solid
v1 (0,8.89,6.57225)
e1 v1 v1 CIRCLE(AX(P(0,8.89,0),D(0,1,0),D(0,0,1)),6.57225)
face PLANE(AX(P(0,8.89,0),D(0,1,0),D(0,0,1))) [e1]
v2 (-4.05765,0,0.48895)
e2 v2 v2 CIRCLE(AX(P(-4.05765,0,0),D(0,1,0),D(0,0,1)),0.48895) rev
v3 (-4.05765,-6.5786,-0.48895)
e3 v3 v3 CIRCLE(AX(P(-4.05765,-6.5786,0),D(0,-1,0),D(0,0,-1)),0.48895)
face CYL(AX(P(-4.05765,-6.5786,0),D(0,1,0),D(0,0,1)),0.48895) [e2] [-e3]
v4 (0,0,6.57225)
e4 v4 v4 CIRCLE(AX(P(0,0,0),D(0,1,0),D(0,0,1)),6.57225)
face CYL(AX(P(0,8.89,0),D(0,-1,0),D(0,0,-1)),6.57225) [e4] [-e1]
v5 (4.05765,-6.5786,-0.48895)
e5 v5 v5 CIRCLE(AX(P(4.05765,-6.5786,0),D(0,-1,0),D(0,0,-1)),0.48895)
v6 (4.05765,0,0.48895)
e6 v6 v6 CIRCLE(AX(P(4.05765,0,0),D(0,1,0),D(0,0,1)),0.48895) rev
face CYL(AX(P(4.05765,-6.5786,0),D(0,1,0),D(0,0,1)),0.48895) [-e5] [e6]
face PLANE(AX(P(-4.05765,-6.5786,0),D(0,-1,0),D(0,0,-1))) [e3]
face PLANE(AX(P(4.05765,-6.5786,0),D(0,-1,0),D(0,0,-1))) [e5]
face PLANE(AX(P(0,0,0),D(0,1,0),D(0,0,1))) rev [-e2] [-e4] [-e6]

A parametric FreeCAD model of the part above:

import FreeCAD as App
import Part
import Sketcher

V = App.Vector
Q = App.Units.Quantity

doc = App.newDocument("Part")
body = doc.addObject("PartDesign::Body", "Body")

sketch1 = doc.addObject("Sketcher::SketchObject", "Sketch")
body.addObject(sketch1)
sketch1.AttachmentSupport = (doc.XZ_Plane, [""])
sketch1.MapMode = "FlatFace"
sketch1.addGeometry(Part.Circle(V(0, 0, 0), V(0, 0, 1), 7), False)
sketch1.addConstraint([
    Sketcher.Constraint("Coincident", 0, 3, -1, 1),
    Sketcher.Constraint("Diameter", 0, Q("0.5175 in")),
])
pad1 = doc.addObject("PartDesign::Pad", "Pad")
body.addObject(pad1)
pad1.Profile = sketch1
pad1.Length = Q("0.35 in")
pad1.Reversed = True

sketch2 = doc.addObject("Sketcher::SketchObject", "Sketch001")
body.addObject(sketch2)
sketch2.AttachmentSupport = (doc.XZ_Plane, [""])
sketch2.MapMode = "FlatFace"
sketch2.addGeometry([
    Part.Circle(V(-4.06, 0, 0), V(0, 0, 1), 0.49),
    Part.Circle(V(4.06, 0, 0), V(0, 0, 1), 0.49),
], False)
sketch2.addConstraint([
    Sketcher.Constraint("Equal", 0, 1),
    Sketcher.Constraint("Symmetric", 0, 3, 1, 3, -1, 1),
    Sketcher.Constraint("PointOnObject", 0, 3, -1),
    Sketcher.Constraint("Diameter", 0, Q("0.0385 in")),
    Sketcher.Constraint("DistanceX", 0, 3, 1, 3, Q("0.3195 in")),
])
pad2 = doc.addObject("PartDesign::Pad", "Pad001")
body.addObject(pad2)
pad2.Profile = sketch2
pad2.Length = Q("0.259 in")

doc.recompute()
